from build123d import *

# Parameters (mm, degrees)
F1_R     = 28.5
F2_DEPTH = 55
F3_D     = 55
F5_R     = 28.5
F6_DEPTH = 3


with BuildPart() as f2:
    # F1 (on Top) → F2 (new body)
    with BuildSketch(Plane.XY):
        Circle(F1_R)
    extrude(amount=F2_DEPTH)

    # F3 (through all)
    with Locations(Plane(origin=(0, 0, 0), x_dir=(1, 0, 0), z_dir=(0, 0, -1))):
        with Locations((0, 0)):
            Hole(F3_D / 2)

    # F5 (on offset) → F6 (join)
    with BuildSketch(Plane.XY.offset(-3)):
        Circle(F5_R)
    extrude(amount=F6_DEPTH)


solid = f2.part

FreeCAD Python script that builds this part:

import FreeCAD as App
import Part
import Sketcher

V = App.Vector

doc = App.newDocument("Part")
body = doc.addObject("PartDesign::Body", "Body")

# Sketch on XY plane
sketch1 = body.newObject("Sketcher::SketchObject", "Sketch")
sketch1.AttachmentSupport = (doc.getObject("XY_Plane"), [""])
sketch1.MapMode = "FlatFace"
sketch1.addGeometry(Part.Circle(V(0, 0, 0), V(0, 0, 1), 28.5), False)
sketch1.addConstraint(Sketcher.Constraint("Coincident", 0, 3, -1, 1))
sketch1.addConstraint(Sketcher.Constraint("Diameter", 0, 57.0))
pad1 = body.newObject("PartDesign::Pad", "Pad")
pad1.Profile = sketch1
pad1.Length = 55

# Sketch on XY plane
sketch2 = body.newObject("Sketcher::SketchObject", "Sketch001")
sketch2.AttachmentSupport = (doc.getObject("XY_Plane"), [""])
sketch2.MapMode = "FlatFace"
sketch2.addGeometry(Part.Circle(V(0, 0, 0), V(0, 0, 1), 27.5), False)
sketch2.addConstraint(Sketcher.Constraint("Coincident", 0, 3, -1, 1))
sketch2.addConstraint(Sketcher.Constraint("Diameter", 0, 55.0))
doc.recompute()
hole = body.newObject("PartDesign::Hole", "Hole")
hole.Profile = sketch2
hole.ThreadType = "None"
hole.Diameter = 55
hole.DepthType = "ThroughAll"
hole.Reversed = True

# Sketch on XY plane
sketch3 = body.newObject("Sketcher::SketchObject", "Sketch002")
sketch3.AttachmentSupport = (doc.getObject("XY_Plane"), [""])
sketch3.MapMode = "FlatFace"
sketch3.AttachmentOffset = App.Placement(V(0, 0, -3), App.Rotation())
sketch3.addGeometry(Part.Circle(V(0, 0, 0), V(0, 0, 1), 28.5), False)
sketch3.addConstraint(Sketcher.Constraint("Coincident", 0, 3, -1, 1))
sketch3.addConstraint(Sketcher.Constraint("Diameter", 0, 57.0))
pad2 = body.newObject("PartDesign::Pad", "Pad001")
pad2.Profile = sketch3
pad2.Length = 3

doc.recompute()
